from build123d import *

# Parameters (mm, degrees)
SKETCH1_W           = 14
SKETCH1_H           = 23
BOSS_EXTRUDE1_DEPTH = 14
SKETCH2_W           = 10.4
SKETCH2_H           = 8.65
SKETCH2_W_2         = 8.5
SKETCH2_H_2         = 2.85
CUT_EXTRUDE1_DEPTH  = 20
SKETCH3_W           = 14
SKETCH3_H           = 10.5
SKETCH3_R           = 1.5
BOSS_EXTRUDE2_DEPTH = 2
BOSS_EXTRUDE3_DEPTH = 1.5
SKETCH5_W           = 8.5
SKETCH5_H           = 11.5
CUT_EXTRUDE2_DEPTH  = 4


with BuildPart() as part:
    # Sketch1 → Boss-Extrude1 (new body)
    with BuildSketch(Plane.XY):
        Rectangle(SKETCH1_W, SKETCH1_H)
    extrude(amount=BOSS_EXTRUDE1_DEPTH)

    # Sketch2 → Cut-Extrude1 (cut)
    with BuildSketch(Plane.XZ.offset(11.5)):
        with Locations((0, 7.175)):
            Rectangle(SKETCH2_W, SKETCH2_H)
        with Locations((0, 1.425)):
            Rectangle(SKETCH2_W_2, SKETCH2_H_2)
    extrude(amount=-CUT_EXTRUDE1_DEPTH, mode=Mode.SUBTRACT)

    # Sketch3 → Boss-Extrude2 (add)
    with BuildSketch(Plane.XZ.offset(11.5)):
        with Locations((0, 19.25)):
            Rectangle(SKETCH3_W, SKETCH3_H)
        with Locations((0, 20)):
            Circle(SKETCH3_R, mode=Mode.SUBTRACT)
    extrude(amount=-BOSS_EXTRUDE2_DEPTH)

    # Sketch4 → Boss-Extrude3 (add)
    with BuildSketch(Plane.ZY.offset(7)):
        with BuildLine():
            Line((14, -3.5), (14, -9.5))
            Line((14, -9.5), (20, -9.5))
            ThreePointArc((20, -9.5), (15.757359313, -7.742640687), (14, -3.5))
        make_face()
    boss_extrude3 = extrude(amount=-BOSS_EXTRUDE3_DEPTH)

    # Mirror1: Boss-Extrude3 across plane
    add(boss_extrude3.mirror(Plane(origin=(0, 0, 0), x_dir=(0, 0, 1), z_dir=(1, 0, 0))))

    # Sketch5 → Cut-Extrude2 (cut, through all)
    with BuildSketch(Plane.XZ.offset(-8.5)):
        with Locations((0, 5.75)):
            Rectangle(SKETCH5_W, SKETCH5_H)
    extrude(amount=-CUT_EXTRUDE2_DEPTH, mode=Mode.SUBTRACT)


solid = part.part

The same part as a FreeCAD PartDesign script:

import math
import FreeCAD as App
import Part
import Sketcher

V = App.Vector


def add_polygon(sketch, points):
    """Adds a closed chain of lines whose ends are joined by coincident constraints."""
    first, n = sketch.GeometryCount, len(points)
    for a, b in zip(points, points[1:] + points[:1]):
        sketch.addGeometry(Part.LineSegment(App.Vector(*a, 0), App.Vector(*b, 0)), False)
    for i in range(n):
        sketch.addConstraint(Sketcher.Constraint("Coincident", first + i, 2, first + (i + 1) % n, 1))

doc = App.newDocument("Part")
body = doc.addObject("PartDesign::Body", "Body")

# Sketch on XY plane
sketch1 = body.newObject("Sketcher::SketchObject", "Sketch")
sketch1.AttachmentSupport = (doc.getObject("XY_Plane"), [""])
sketch1.MapMode = "FlatFace"
add_polygon(sketch1, [(-7, 12), (-7, -12), (7, -12), (7, 12)])  # lines 0-3
sketch1.addConstraint([
    Sketcher.Constraint("Vertical", 0),
    Sketcher.Constraint("Horizontal", 1),
    Sketcher.Constraint("Vertical", 2),
    Sketcher.Constraint("Horizontal", 3),
    Sketcher.Constraint("Symmetric", 0, 2, 2, 2, -1, 1),
    Sketcher.Constraint("DistanceX", 1, 1, 1, 2, 14.0),
    Sketcher.Constraint("DistanceY", 0, 2, 0, 1, 23.0),
])
pad1 = body.newObject("PartDesign::Pad", "Pad")
pad1.Profile = sketch1
pad1.Length = 14

# Sketch on XZ plane
sketch2 = body.newObject("Sketcher::SketchObject", "Sketch001")
sketch2.AttachmentSupport = (doc.getObject("XZ_Plane"), [""])
sketch2.MapMode = "FlatFace"
sketch2.AttachmentOffset = App.Placement(V(0, 0, 11.5), App.Rotation())
add_polygon(sketch2, [(-5.2, 11.5), (-5.2, 2.9), (-4.2, 2.9), (-4.2, 0), (4.2, 0), (4.2, 2.9), (5.2, 2.9), (5.2, 11.5)])  # lines 0-7
sketch2.addConstraint([
    Sketcher.Constraint("Vertical", 0),
    Sketcher.Constraint("Horizontal", 1),
    Sketcher.Constraint("Vertical", 2),
    Sketcher.Constraint("Horizontal", 3),
    Sketcher.Constraint("Vertical", 4),
    Sketcher.Constraint("Horizontal", 5),
    Sketcher.Constraint("Vertical", 6),
    Sketcher.Constraint("Horizontal", 7),
    Sketcher.Constraint("Symmetric", 2, 2, 3, 2, -1, 1),
    Sketcher.Constraint("Symmetric", 0, 2, 5, 2, -2),
    Sketcher.Constraint("DistanceX", 3, 1, 3, 2, 8.5),
    Sketcher.Constraint("DistanceX", 7, 2, 7, 1, 10.4),
    Sketcher.Constraint("DistanceY", 0, 2, 0, 1, 8.65),
    Sketcher.Constraint("DistanceY", 2, 2, 2, 1, 2.85),
])
pocket1 = body.newObject("PartDesign::Pocket", "Pocket")
pocket1.Profile = sketch2
pocket1.Length = 20

# Sketch on XZ plane
sketch3 = body.newObject("Sketcher::SketchObject", "Sketch002")
sketch3.AttachmentSupport = (doc.getObject("XZ_Plane"), [""])
sketch3.MapMode = "FlatFace"
sketch3.AttachmentOffset = App.Placement(V(0, 0, 11.5), App.Rotation())
add_polygon(sketch3, [(-7, 24.5), (-7, 14), (7, 14), (7, 24.5)])  # lines 0-3
sketch3.addGeometry(Part.Circle(V(0, 20, 0), V(0, 0, 1), 1.5), False)  # 4
sketch3.addConstraint([
    Sketcher.Constraint("Vertical", 0),
    Sketcher.Constraint("Horizontal", 1),
    Sketcher.Constraint("Vertical", 2),
    Sketcher.Constraint("Horizontal", 3),
    Sketcher.Constraint("PointOnObject", 4, 3, -2),
    Sketcher.Constraint("Diameter", 4, 3.0),
    Sketcher.Constraint("DistanceX", 1, 1, 1, 2, 14.0),
    Sketcher.Constraint("DistanceY", 0, 2, 0, 1, 10.5),
    Sketcher.Constraint("DistanceY", -1, 1, 4, 3, 20.0),
    Sketcher.Constraint("DistanceX", 0, 2, -1, 1, 7.0),
    Sketcher.Constraint("DistanceY", -1, 1, 0, 2, 14.0),
])
pad2 = body.newObject("PartDesign::Pad", "Pad001")
pad2.Profile = sketch3
pad2.Length = 2
pad2.Reversed = True

# Sketch on YZ plane
sketch4 = body.newObject("Sketcher::SketchObject", "Sketch003")
sketch4.AttachmentSupport = (doc.getObject("YZ_Plane"), [""])
sketch4.MapMode = "FlatFace"
sketch4.AttachmentOffset = App.Placement(V(0, 0, -7), App.Rotation())
sketch4.addGeometry([
    Part.LineSegment(V(-4, 14, 0), V(-10, 14, 0)),
    Part.LineSegment(V(-10, 14, 0), V(-10, 20, 0)),
    Part.ArcOfCircle(Part.Circle(V(-4, 20, 0), V(0, 0, 1), 6), math.radians(180), math.radians(270)),
], False)
sketch4.addConstraint([
    Sketcher.Constraint("Coincident", 0, 2, 1, 1),
    Sketcher.Constraint("Tangent", 1, 2, 2, 1),
    Sketcher.Constraint("Tangent", 2, 2, 0, 1),
    Sketcher.Constraint("Horizontal", 0),
    Sketcher.Constraint("Vertical", 1),
    Sketcher.Constraint("Radius", 2, 6.0),
    Sketcher.Constraint("DistanceY", -1, 1, 2, 3, 20.0),
    Sketcher.Constraint("DistanceX", 2, 3, -1, 1, 3.5),
])
pad3 = body.newObject("PartDesign::Pad", "Pad002")
pad3.Profile = sketch4
pad3.Length = 1.5
doc.recompute()

mirrored = body.newObject("PartDesign::Mirrored", "Mirrored")
mirrored.Originals = [pad3]
mirrored.MirrorPlane = (doc.getObject("YZ_Plane"), [""])
body.Tip = mirrored

# Sketch on XZ plane
sketch5 = body.newObject("Sketcher::SketchObject", "Sketch004")
sketch5.AttachmentSupport = (doc.getObject("XZ_Plane"), [""])
sketch5.MapMode = "FlatFace"
sketch5.AttachmentOffset = App.Placement(V(0, 0, -8.5), App.Rotation())
add_polygon(sketch5, [(-4, 12), (-4, 0), (4, 0), (4, 12)])  # lines 0-3
sketch5.addConstraint([
    Sketcher.Constraint("Vertical", 0),
    Sketcher.Constraint("Horizontal", 1),
    Sketcher.Constraint("Vertical", 2),
    Sketcher.Constraint("Horizontal", 3),
    Sketcher.Constraint("Symmetric", 0, 2, 1, 2, -1, 1),
    Sketcher.Constraint("DistanceX", 1, 1, 1, 2, 8.5),
    Sketcher.Constraint("DistanceY", 0, 2, 0, 1, 11.5),
])
pocket2 = body.newObject("PartDesign::Pocket", "Pocket001")
pocket2.Profile = sketch5
pocket2.Type = "ThroughAll"

doc.recompute()
